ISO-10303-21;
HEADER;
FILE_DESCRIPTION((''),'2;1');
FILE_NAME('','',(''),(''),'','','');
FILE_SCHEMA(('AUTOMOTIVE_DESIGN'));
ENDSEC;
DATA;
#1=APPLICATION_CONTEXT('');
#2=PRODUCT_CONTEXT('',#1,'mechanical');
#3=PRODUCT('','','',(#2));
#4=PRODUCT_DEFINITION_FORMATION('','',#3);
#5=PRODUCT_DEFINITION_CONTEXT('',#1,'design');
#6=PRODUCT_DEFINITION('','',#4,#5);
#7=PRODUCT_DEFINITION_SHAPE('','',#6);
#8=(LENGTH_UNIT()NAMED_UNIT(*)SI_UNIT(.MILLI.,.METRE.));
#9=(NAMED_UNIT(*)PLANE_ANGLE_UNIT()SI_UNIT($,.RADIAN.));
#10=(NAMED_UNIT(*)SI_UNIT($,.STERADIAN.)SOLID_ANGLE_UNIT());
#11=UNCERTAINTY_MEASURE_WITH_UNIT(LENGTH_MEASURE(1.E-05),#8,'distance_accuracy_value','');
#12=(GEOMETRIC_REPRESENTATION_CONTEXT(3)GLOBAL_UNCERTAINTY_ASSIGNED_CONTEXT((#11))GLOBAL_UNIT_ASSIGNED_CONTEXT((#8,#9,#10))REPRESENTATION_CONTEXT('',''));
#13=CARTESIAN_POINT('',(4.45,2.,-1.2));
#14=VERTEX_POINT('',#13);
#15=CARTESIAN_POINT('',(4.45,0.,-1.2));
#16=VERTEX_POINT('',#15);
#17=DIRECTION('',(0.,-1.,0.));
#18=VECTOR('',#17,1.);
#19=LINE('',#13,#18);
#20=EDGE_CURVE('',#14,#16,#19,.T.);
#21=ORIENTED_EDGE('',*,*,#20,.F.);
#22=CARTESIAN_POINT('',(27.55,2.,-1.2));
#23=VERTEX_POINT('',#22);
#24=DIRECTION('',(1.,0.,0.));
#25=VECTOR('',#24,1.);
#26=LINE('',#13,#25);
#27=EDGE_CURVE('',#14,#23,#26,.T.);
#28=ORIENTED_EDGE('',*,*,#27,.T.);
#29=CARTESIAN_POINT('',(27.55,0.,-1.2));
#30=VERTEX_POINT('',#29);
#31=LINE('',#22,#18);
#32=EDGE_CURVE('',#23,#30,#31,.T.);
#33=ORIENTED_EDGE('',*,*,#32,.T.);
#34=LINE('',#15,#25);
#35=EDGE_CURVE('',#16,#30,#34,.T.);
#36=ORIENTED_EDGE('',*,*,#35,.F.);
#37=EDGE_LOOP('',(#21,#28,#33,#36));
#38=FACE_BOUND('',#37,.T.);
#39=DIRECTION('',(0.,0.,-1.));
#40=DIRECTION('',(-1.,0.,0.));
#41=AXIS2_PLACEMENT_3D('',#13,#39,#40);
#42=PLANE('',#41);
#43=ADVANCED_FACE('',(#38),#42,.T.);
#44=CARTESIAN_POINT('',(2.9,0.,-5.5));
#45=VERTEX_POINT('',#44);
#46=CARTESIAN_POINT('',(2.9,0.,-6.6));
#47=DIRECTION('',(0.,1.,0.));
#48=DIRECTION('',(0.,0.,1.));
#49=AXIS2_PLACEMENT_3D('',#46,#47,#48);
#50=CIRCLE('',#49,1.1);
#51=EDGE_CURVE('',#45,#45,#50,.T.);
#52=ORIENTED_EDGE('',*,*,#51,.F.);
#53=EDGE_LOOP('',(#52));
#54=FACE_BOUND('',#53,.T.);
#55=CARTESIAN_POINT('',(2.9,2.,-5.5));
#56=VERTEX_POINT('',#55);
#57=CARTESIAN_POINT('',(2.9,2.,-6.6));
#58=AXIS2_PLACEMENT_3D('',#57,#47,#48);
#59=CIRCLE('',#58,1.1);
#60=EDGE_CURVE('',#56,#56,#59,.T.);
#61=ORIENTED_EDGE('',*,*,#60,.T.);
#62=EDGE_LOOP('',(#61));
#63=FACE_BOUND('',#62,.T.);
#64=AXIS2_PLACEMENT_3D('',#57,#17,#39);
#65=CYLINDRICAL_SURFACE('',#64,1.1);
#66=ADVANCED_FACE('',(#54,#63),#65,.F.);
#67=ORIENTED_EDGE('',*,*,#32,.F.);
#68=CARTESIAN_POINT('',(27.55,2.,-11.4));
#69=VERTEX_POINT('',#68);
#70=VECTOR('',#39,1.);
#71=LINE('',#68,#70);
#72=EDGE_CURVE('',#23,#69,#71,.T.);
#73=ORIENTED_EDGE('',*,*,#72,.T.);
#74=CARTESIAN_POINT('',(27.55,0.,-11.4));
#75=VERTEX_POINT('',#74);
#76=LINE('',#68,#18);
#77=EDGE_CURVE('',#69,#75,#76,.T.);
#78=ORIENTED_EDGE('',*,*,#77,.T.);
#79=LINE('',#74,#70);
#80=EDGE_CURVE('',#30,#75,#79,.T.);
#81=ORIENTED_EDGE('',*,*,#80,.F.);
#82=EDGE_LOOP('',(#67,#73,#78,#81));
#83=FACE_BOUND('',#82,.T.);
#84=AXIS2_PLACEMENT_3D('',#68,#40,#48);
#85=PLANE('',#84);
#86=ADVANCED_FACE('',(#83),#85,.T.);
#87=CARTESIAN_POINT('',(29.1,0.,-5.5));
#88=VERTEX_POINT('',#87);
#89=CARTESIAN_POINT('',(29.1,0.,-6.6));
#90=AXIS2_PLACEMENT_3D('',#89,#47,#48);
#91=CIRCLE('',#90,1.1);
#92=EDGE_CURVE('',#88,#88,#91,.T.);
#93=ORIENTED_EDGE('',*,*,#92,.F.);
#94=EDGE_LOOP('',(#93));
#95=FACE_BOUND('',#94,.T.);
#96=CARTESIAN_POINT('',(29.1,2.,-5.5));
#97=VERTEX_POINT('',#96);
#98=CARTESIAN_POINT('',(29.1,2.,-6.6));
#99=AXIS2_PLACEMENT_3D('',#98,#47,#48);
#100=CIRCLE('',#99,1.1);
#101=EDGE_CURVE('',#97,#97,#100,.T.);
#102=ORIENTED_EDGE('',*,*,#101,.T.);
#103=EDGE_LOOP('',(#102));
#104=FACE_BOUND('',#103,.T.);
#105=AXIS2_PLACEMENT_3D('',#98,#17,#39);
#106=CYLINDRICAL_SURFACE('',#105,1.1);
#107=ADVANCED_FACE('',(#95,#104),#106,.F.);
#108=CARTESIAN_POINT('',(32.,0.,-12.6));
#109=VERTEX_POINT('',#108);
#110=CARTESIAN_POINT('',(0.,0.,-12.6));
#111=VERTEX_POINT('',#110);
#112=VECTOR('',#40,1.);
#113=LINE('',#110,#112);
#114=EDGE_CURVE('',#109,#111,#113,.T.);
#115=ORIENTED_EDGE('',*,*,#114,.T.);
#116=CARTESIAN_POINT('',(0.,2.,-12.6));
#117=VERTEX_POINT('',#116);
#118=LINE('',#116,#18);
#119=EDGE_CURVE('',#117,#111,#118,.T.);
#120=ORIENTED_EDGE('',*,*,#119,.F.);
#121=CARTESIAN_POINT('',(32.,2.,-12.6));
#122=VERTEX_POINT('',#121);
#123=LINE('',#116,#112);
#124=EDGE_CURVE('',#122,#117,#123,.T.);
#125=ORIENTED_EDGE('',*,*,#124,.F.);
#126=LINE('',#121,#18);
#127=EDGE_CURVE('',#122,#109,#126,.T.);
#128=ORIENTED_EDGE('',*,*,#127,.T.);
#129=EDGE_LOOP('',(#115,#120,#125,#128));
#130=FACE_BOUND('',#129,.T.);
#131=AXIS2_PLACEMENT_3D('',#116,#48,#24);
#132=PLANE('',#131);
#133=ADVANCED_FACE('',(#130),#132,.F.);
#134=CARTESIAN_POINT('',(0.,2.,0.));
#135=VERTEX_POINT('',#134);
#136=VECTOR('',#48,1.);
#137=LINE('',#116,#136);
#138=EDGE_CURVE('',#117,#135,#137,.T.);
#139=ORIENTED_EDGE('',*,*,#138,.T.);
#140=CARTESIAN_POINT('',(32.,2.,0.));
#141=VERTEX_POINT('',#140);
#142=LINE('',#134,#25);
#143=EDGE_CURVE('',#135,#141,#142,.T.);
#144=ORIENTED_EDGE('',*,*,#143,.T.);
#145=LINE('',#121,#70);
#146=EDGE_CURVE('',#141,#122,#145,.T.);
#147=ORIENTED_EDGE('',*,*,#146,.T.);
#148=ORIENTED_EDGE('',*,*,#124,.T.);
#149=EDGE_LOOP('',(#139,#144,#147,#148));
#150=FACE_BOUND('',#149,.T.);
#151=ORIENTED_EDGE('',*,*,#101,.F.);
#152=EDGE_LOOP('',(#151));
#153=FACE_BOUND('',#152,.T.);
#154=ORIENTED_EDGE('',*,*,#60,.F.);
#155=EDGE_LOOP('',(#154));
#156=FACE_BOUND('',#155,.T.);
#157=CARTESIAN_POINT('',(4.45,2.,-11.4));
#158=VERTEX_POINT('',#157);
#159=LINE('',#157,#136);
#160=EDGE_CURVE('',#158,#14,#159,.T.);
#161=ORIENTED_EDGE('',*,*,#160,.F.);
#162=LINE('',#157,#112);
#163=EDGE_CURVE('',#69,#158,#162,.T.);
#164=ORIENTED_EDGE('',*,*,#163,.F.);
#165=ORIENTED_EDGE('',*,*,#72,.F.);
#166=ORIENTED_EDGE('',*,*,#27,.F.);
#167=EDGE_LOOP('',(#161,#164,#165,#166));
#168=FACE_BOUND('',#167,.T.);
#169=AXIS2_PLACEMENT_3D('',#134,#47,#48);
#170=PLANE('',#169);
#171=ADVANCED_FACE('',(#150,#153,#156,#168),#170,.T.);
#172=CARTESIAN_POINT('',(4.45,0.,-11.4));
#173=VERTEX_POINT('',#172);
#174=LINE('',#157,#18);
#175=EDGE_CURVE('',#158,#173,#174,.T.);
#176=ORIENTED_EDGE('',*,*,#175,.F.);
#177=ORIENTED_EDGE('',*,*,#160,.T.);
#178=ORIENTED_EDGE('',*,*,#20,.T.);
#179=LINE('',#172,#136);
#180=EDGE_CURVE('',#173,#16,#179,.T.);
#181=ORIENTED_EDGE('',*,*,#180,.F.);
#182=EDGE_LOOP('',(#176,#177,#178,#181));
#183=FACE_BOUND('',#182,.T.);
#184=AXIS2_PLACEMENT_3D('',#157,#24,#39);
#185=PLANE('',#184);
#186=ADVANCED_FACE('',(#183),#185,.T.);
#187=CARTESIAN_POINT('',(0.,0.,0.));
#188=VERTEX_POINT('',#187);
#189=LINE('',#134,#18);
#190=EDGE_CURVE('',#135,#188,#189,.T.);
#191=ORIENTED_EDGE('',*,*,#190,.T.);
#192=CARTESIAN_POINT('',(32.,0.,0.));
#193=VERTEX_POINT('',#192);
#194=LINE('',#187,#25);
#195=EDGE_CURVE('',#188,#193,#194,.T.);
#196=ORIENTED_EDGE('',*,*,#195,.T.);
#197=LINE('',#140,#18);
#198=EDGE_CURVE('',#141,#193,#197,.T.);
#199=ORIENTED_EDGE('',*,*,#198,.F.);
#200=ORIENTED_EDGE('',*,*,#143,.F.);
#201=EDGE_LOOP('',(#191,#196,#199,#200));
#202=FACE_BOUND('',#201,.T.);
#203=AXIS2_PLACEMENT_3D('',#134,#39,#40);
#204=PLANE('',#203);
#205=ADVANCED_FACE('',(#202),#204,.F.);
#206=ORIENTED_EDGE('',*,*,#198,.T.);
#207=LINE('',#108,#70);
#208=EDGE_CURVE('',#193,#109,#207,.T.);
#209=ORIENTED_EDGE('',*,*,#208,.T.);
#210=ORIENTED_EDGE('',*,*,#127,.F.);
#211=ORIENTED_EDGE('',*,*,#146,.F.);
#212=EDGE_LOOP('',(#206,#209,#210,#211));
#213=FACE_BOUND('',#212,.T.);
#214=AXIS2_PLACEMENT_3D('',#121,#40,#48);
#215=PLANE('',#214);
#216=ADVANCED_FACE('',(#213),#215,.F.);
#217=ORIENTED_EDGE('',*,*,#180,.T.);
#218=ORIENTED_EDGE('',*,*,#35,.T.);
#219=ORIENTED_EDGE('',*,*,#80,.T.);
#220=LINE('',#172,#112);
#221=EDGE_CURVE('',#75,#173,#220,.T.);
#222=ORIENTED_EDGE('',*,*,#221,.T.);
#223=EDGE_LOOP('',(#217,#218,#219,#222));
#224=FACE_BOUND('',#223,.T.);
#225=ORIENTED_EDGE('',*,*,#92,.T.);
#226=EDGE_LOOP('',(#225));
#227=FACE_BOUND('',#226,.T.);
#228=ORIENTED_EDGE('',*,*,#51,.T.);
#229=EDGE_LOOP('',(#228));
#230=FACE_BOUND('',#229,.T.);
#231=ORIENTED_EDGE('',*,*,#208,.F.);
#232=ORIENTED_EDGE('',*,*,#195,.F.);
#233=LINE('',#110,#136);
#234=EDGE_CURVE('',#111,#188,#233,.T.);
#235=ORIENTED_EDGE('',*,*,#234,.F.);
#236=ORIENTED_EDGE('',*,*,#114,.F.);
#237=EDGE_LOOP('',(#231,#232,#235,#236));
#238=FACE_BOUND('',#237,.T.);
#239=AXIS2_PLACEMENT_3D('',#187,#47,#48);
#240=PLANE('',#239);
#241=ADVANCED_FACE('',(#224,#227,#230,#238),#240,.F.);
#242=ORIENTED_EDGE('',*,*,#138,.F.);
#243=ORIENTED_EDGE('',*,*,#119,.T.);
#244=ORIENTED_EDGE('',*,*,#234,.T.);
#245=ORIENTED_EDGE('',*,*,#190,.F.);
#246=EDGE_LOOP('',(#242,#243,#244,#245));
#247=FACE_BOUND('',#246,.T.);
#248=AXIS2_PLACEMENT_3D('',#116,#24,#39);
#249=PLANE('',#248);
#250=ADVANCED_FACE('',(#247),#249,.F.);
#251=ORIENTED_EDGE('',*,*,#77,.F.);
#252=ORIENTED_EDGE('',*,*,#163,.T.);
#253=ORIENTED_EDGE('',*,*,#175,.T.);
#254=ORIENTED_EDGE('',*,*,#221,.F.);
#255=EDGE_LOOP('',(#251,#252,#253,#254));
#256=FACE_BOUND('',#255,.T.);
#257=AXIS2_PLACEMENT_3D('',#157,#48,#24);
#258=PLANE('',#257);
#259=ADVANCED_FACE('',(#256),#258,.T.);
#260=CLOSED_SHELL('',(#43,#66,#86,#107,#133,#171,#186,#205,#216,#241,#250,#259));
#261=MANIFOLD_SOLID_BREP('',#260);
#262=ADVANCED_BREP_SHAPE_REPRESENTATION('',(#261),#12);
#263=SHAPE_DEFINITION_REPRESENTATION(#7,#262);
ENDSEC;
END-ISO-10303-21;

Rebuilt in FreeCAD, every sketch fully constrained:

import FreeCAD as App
import Part
import Sketcher
Q = App.Units.Quantity

doc = App.newDocument("Part")
body = doc.addObject("PartDesign::Body", "Body")

# Sketch on XZ plane
sketch1 = body.newObject("Sketcher::SketchObject", "Sketch")
sketch1.AttachmentSupport = (doc.getObject("XZ_Plane"), [""])
sketch1.MapMode = "FlatFace"
sketch1.addGeometry([
    Part.LineSegment(App.Vector(0, -12.6, 0), App.Vector(0, 0, 0)),  # 0
    Part.LineSegment(App.Vector(0, 0, 0), App.Vector(32, 0, 0)),  # 1
    Part.LineSegment(App.Vector(32, 0, 0), App.Vector(32, -12.6, 0)),  # 2
    Part.LineSegment(App.Vector(32, -12.6, 0), App.Vector(0, -12.6, 0)),  # 3
    Part.Circle(App.Vector(2.9, -6.6, 0), App.Vector(0, 0, 1), 1.1),  # 4
    Part.LineSegment(App.Vector(27.6, -1.2, 0), App.Vector(4.5, -1.2, 0)),  # 5
    Part.LineSegment(App.Vector(4.5, -1.2, 0), App.Vector(4.5, -11.4, 0)),  # 6
    Part.LineSegment(App.Vector(4.5, -11.4, 0), App.Vector(27.6, -11.4, 0)),  # 7
    Part.LineSegment(App.Vector(27.6, -11.4, 0), App.Vector(27.6, -1.2, 0)),  # 8
    Part.Circle(App.Vector(29.1, -6.6, 0), App.Vector(0, 0, 1), 1.1),  # 9
], False)
sketch1.addConstraint([
    Sketcher.Constraint("Coincident", 0, 2, 1, 1),
    Sketcher.Constraint("Coincident", 1, 2, 2, 1),
    Sketcher.Constraint("Coincident", 2, 2, 3, 1),
    Sketcher.Constraint("Coincident", 3, 2, 0, 1),
    Sketcher.Constraint("Coincident", 5, 2, 6, 1),
    Sketcher.Constraint("Coincident", 6, 2, 7, 1),
    Sketcher.Constraint("Coincident", 7, 2, 8, 1),
    Sketcher.Constraint("Coincident", 8, 2, 5, 1),
    Sketcher.Constraint("Vertical", 0),
    Sketcher.Constraint("Horizontal", 1),
    Sketcher.Constraint("Vertical", 2),
    Sketcher.Constraint("Horizontal", 3),
    Sketcher.Constraint("Horizontal", 5),
    Sketcher.Constraint("Vertical", 6),
    Sketcher.Constraint("Horizontal", 7),
    Sketcher.Constraint("Vertical", 8),
    Sketcher.Constraint("Coincident", 0, 2, -1, 1),
    Sketcher.Constraint("Equal", 4, 9),
    Sketcher.Constraint("Horizontal", 4, 3, 9, 3),
    Sketcher.Constraint("Diameter", 4, Q("2.2 mm")),
    Sketcher.Constraint("DistanceX", 1, 1, 1, 2, Q("32 mm")),
    Sketcher.Constraint("DistanceX", 5, 2, 5, 1, Q("23.1 mm")),
    Sketcher.Constraint("DistanceY", 0, 1, 0, 2, Q("12.6 mm")),
    Sketcher.Constraint("DistanceY", 6, 2, 6, 1, Q("10.2 mm")),
    Sketcher.Constraint("DistanceY", 2, 2, 9, 3, Q("6 mm")),
    Sketcher.Constraint("DistanceX", -1, 1, 4, 3, Q("2.9 mm")),
    Sketcher.Constraint("DistanceX", -1, 1, 9, 3, Q("29.1 mm")),
    Sketcher.Constraint("DistanceY", 5, 2, -1, 1, Q("1.2 mm")),
    Sketcher.Constraint("DistanceX", -1, 1, 5, 2, Q("4.45 mm")),
])
pad1 = body.newObject("PartDesign::Pad", "Pad")
pad1.Profile = sketch1
pad1.Length = 2
pad1.Reversed = True

doc.recompute()
